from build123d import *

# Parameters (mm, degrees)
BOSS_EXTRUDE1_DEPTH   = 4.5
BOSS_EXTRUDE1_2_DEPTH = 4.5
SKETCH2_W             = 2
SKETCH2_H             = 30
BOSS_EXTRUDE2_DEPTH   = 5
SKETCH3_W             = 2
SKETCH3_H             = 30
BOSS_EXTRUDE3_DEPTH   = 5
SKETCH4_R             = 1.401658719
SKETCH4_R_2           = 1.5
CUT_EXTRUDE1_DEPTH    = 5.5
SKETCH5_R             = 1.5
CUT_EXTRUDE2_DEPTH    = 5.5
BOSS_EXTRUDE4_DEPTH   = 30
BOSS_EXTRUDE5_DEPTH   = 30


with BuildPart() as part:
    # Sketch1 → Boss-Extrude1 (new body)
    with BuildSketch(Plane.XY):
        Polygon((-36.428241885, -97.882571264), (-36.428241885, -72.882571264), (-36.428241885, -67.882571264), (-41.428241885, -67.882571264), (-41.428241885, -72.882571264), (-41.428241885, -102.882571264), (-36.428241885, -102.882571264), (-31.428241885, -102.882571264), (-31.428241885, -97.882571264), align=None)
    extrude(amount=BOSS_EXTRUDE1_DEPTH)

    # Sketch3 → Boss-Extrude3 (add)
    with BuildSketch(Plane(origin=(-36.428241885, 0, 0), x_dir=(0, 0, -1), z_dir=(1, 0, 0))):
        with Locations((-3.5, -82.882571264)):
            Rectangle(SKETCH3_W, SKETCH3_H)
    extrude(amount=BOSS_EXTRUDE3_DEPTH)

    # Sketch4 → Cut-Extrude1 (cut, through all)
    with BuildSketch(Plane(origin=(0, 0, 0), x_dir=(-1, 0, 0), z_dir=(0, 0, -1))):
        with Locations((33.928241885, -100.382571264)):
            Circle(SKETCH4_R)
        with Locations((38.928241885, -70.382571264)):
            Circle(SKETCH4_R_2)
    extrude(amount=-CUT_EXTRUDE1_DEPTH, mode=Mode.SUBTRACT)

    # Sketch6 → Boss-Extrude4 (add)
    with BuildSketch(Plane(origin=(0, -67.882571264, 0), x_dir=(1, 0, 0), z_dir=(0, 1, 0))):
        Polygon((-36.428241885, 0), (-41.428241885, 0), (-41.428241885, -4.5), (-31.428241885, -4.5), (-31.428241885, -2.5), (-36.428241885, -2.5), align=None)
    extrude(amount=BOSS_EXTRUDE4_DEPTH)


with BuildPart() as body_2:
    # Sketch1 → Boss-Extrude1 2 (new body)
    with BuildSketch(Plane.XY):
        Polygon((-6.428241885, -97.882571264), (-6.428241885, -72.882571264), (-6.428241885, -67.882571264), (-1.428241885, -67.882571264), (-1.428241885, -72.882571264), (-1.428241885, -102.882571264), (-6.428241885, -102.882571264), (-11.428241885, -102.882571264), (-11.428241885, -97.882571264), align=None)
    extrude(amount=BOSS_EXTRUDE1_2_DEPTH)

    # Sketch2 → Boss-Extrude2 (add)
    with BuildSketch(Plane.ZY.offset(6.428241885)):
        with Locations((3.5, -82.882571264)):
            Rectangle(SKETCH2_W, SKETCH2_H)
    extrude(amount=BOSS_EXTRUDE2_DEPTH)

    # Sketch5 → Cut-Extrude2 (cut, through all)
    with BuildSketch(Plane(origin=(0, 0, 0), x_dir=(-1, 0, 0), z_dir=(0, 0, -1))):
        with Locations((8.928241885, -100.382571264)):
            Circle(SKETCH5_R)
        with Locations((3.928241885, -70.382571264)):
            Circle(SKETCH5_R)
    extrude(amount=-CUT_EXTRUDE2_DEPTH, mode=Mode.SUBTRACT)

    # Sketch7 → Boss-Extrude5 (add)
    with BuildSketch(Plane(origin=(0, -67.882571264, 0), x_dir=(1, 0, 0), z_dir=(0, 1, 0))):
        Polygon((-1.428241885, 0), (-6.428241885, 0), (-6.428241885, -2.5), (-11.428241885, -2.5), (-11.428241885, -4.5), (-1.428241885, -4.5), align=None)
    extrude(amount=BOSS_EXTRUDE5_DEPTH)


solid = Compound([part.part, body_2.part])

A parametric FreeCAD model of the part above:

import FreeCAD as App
import Part
import Sketcher

doc = App.newDocument("Part")
params = doc.addObject("Spreadsheet::Sheet", "Params")
for row, (alias, value) in enumerate([
    ("sketch1_width", "5 mm"),
    ("sketch1_height", "30 mm"),
    ("pad1_length", "4.5 mm"),
    ("sketch2_width", "30 mm"),
    ("sketch2_height", "2 mm"),
    ("pad2_length", "5 mm"),
    ("sketch3_diameter", "3 mm"),
    ("sketch4_width", "5 mm"),
    ("sketch4_height", "2 mm"),
    ("sketch4_height2", "4.5 mm"),
    ("pad3_length", "30 mm"),
    ("sketch5_width", "5 mm"),
    ("sketch5_height", "30 mm"),
    ("pad4_length", "4.5 mm"),
    ("sketch6_width", "30 mm"),
    ("sketch6_height", "2 mm"),
    ("pad5_length", "5 mm"),
    ("sketch7_diameter", "3 mm"),
    ("sketch8_width", "5 mm"),
    ("sketch8_height", "2 mm"),
    ("sketch8_height2", "2.5 mm"),
    ("pad6_length", "30 mm"),
], start=1):
    params.set(f"A{row}", alias)
    params.set(f"B{row}", "=" + value)
    params.setAlias(f"B{row}", alias)

body = doc.addObject("PartDesign::Body", "Body")

# Sketch on XY plane
sketch1 = body.newObject("Sketcher::SketchObject", "Sketch")
sketch1.AttachmentSupport = (doc.getObject("XY_Plane"), [""])
sketch1.MapMode = "FlatFace"
sketch1.addGeometry(Part.LineSegment(App.Vector(-36.428242, -97.882571, 0), App.Vector(-36.428242, -67.882571, 0)), False)
sketch1.addGeometry(Part.LineSegment(App.Vector(-36.428242, -67.882571, 0), App.Vector(-41.428242, -67.882571, 0)), False)
sketch1.addGeometry(Part.LineSegment(App.Vector(-41.428242, -67.882571, 0), App.Vector(-41.428242, -102.882571, 0)), False)
sketch1.addGeometry(Part.LineSegment(App.Vector(-41.428242, -102.882571, 0), App.Vector(-31.428242, -102.882571, 0)), False)
sketch1.addGeometry(Part.LineSegment(App.Vector(-31.428242, -102.882571, 0), App.Vector(-31.428242, -97.882571, 0)), False)
sketch1.addGeometry(Part.LineSegment(App.Vector(-31.428242, -97.882571, 0), App.Vector(-36.428242, -97.882571, 0)), False)
sketch1.addConstraint(Sketcher.Constraint("Coincident", 0, 2, 1, 1))
sketch1.addConstraint(Sketcher.Constraint("Coincident", 1, 2, 2, 1))
sketch1.addConstraint(Sketcher.Constraint("Coincident", 2, 2, 3, 1))
sketch1.addConstraint(Sketcher.Constraint("Coincident", 3, 2, 4, 1))
sketch1.addConstraint(Sketcher.Constraint("Coincident", 4, 2, 5, 1))
sketch1.addConstraint(Sketcher.Constraint("Coincident", 5, 2, 0, 1))
sketch1.addConstraint(Sketcher.Constraint("Vertical", 0))
sketch1.addConstraint(Sketcher.Constraint("Horizontal", 1))
sketch1.addConstraint(Sketcher.Constraint("Vertical", 2))
sketch1.addConstraint(Sketcher.Constraint("Horizontal", 3))
sketch1.addConstraint(Sketcher.Constraint("Vertical", 4))
sketch1.addConstraint(Sketcher.Constraint("Horizontal", 5))
sketch1.addConstraint(Sketcher.Constraint("Equal", 1, 5))
sketch1.addConstraint(Sketcher.Constraint("Equal", 5, 4))
sketch1.addConstraint(Sketcher.Constraint("DistanceX", 1, 2, 1, 1, 5.0))
sketch1.addConstraint(Sketcher.Constraint("DistanceY", 0, 1, 0, 2, 30.0))
sketch1.addConstraint(Sketcher.Constraint("DistanceX", 0, 2, -1, 1, 36.428242))
sketch1.addConstraint(Sketcher.Constraint("DistanceY", 0, 2, -1, 1, 67.882571))
sketch1.setExpression("Constraints[14]", "Params.sketch1_width")
sketch1.setExpression("Constraints[15]", "Params.sketch1_height")
pad1 = body.newObject("PartDesign::Pad", "Pad")
pad1.Profile = sketch1
pad1.setExpression("Length", "Params.pad1_length")

# Sketch on YZ plane
sketch2 = body.newObject("Sketcher::SketchObject", "Sketch001")
sketch2.AttachmentSupport = (doc.getObject("YZ_Plane"), [""])
sketch2.MapMode = "FlatFace"
sketch2.AttachmentOffset = App.Placement(App.Vector(0, 0, -36.428242), App.Rotation())
sketch2.addGeometry(Part.LineSegment(App.Vector(-67.882571, 4.5, 0), App.Vector(-97.882571, 4.5, 0)), False)
sketch2.addGeometry(Part.LineSegment(App.Vector(-97.882571, 4.5, 0), App.Vector(-97.882571, 2.5, 0)), False)
sketch2.addGeometry(Part.LineSegment(App.Vector(-97.882571, 2.5, 0), App.Vector(-67.882571, 2.5, 0)), False)
sketch2.addGeometry(Part.LineSegment(App.Vector(-67.882571, 2.5, 0), App.Vector(-67.882571, 4.5, 0)), False)
sketch2.addConstraint(Sketcher.Constraint("Coincident", 0, 2, 1, 1))
sketch2.addConstraint(Sketcher.Constraint("Coincident", 1, 2, 2, 1))
sketch2.addConstraint(Sketcher.Constraint("Coincident", 2, 2, 3, 1))
sketch2.addConstraint(Sketcher.Constraint("Coincident", 3, 2, 0, 1))
sketch2.addConstraint(Sketcher.Constraint("Horizontal", 0))
sketch2.addConstraint(Sketcher.Constraint("Vertical", 1))
sketch2.addConstraint(Sketcher.Constraint("Horizontal", 2))
sketch2.addConstraint(Sketcher.Constraint("Vertical", 3))
sketch2.addConstraint(Sketcher.Constraint("DistanceX", 0, 2, 0, 1, 30.0))
sketch2.addConstraint(Sketcher.Constraint("DistanceY", 1, 2, 1, 1, 2.0))
sketch2.addConstraint(Sketcher.Constraint("DistanceY", -1, 1, 0, 2, 4.5))
sketch2.addConstraint(Sketcher.Constraint("DistanceX", 0, 2, -1, 1, 97.882571))
sketch2.setExpression("Constraints[8]", "Params.sketch2_width")
sketch2.setExpression("Constraints[9]", "Params.sketch2_height")
pad2 = body.newObject("PartDesign::Pad", "Pad001")
pad2.Profile = sketch2
pad2.setExpression("Length", "Params.pad2_length")

# Sketch on XY plane
sketch3 = body.newObject("Sketcher::SketchObject", "Sketch002")
sketch3.AttachmentSupport = (doc.getObject("XY_Plane"), [""])
sketch3.MapMode = "FlatFace"
sketch3.addGeometry(Part.Circle(App.Vector(-33.928242, -100.382571, 0), App.Vector(0, 0, 1), 1.401659), False)
sketch3.addGeometry(Part.Circle(App.Vector(-38.928242, -70.382571, 0), App.Vector(0, 0, 1), 1.5), False)
sketch3.addConstraint(Sketcher.Constraint("Diameter", 1, 3.0))
sketch3.addConstraint(Sketcher.Constraint("DistanceX", 1, 3, 0, 3, 5.0))
sketch3.addConstraint(Sketcher.Constraint("DistanceY", 0, 3, 1, 3, 30.0))
sketch3.addConstraint(Sketcher.Constraint("Diameter", 0, 2.803317))
sketch3.addConstraint(Sketcher.Constraint("DistanceX", 0, 3, -1, 1, 33.928242))
sketch3.addConstraint(Sketcher.Constraint("DistanceY", 0, 3, -1, 1, 100.382571))
sketch3.setExpression("Constraints[0]", "Params.sketch3_diameter")
pocket1 = body.newObject("PartDesign::Pocket", "Pocket")
pocket1.Profile = sketch3
pocket1.Type = "ThroughAll"
pocket1.Reversed = True

# Sketch on XZ plane
sketch4 = body.newObject("Sketcher::SketchObject", "Sketch003")
sketch4.AttachmentSupport = (doc.getObject("XZ_Plane"), [""])
sketch4.MapMode = "FlatFace"
sketch4.AttachmentOffset = App.Placement(App.Vector(0, 0, 67.882571), App.Rotation())
sketch4.addGeometry(Part.LineSegment(App.Vector(-36.428242, 0, 0), App.Vector(-41.428242, 0, 0)), False)
sketch4.addGeometry(Part.LineSegment(App.Vector(-41.428242, 0, 0), App.Vector(-41.428242, 4.5, 0)), False)
sketch4.addGeometry(Part.LineSegment(App.Vector(-41.428242, 4.5, 0), App.Vector(-31.428242, 4.5, 0)), False)
sketch4.addGeometry(Part.LineSegment(App.Vector(-31.428242, 4.5, 0), App.Vector(-31.428242, 2.5, 0)), False)
sketch4.addGeometry(Part.LineSegment(App.Vector(-31.428242, 2.5, 0), App.Vector(-36.428242, 2.5, 0)), False)
sketch4.addGeometry(Part.LineSegment(App.Vector(-36.428242, 2.5, 0), App.Vector(-36.428242, 0, 0)), False)
sketch4.addConstraint(Sketcher.Constraint("Coincident", 0, 2, 1, 1))
sketch4.addConstraint(Sketcher.Constraint("Coincident", 1, 2, 2, 1))
sketch4.addConstraint(Sketcher.Constraint("Coincident", 2, 2, 3, 1))
sketch4.addConstraint(Sketcher.Constraint("Coincident", 3, 2, 4, 1))
sketch4.addConstraint(Sketcher.Constraint("Coincident", 4, 2, 5, 1))
sketch4.addConstraint(Sketcher.Constraint("Coincident", 5, 2, 0, 1))
sketch4.addConstraint(Sketcher.Constraint("Horizontal", 0))
sketch4.addConstraint(Sketcher.Constraint("Vertical", 1))
sketch4.addConstraint(Sketcher.Constraint("Horizontal", 2))
sketch4.addConstraint(Sketcher.Constraint("Vertical", 3))
sketch4.addConstraint(Sketcher.Constraint("Horizontal", 4))
sketch4.addConstraint(Sketcher.Constraint("Vertical", 5))
sketch4.addConstraint(Sketcher.Constraint("PointOnObject", 0, 2, -1))
sketch4.addConstraint(Sketcher.Constraint("Equal", 0, 4))
sketch4.addConstraint(Sketcher.Constraint("DistanceX", 0, 2, 0, 1, 5.0))
sketch4.addConstraint(Sketcher.Constraint("DistanceY", 3, 2, 3, 1, 2.0))
sketch4.addConstraint(Sketcher.Constraint("DistanceY", 1, 1, 1, 2, 4.5))
sketch4.addConstraint(Sketcher.Constraint("DistanceX", 0, 2, -1, 1, 41.428242))
sketch4.setExpression("Constraints[14]", "Params.sketch4_width")
sketch4.setExpression("Constraints[15]", "Params.sketch4_height")
sketch4.setExpression("Constraints[16]", "Params.sketch4_height2")
pad3 = body.newObject("PartDesign::Pad", "Pad002")
pad3.Profile = sketch4
pad3.setExpression("Length", "Params.pad3_length")
pad3.Reversed = True
body2 = doc.addObject("PartDesign::Body", "Body001")

# Sketch on XY plane
sketch5 = body2.newObject("Sketcher::SketchObject", "Sketch004")
sketch5.AttachmentSupport = (doc.getObject("XY_Plane001"), [""])
sketch5.MapMode = "FlatFace"
sketch5.addGeometry(Part.LineSegment(App.Vector(-6.428242, -67.882571, 0), App.Vector(-6.428242, -97.882571, 0)), False)
sketch5.addGeometry(Part.LineSegment(App.Vector(-6.428242, -97.882571, 0), App.Vector(-11.428242, -97.882571, 0)), False)
sketch5.addGeometry(Part.LineSegment(App.Vector(-11.428242, -97.882571, 0), App.Vector(-11.428242, -102.882571, 0)), False)
sketch5.addGeometry(Part.LineSegment(App.Vector(-11.428242, -102.882571, 0), App.Vector(-1.428242, -102.882571, 0)), False)
sketch5.addGeometry(Part.LineSegment(App.Vector(-1.428242, -102.882571, 0), App.Vector(-1.428242, -67.882571, 0)), False)
sketch5.addGeometry(Part.LineSegment(App.Vector(-1.428242, -67.882571, 0), App.Vector(-6.428242, -67.882571, 0)), False)
sketch5.addConstraint(Sketcher.Constraint("Coincident", 0, 2, 1, 1))
sketch5.addConstraint(Sketcher.Constraint("Coincident", 1, 2, 2, 1))
sketch5.addConstraint(Sketcher.Constraint("Coincident", 2, 2, 3, 1))
sketch5.addConstraint(Sketcher.Constraint("Coincident", 3, 2, 4, 1))
sketch5.addConstraint(Sketcher.Constraint("Coincident", 4, 2, 5, 1))
sketch5.addConstraint(Sketcher.Constraint("Coincident", 5, 2, 0, 1))
sketch5.addConstraint(Sketcher.Constraint("Vertical", 0))
sketch5.addConstraint(Sketcher.Constraint("Horizontal", 1))
sketch5.addConstraint(Sketcher.Constraint("Vertical", 2))
sketch5.addConstraint(Sketcher.Constraint("Horizontal", 3))
sketch5.addConstraint(Sketcher.Constraint("Vertical", 4))
sketch5.addConstraint(Sketcher.Constraint("Horizontal", 5))
sketch5.addConstraint(Sketcher.Constraint("Equal", 1, 5))
sketch5.addConstraint(Sketcher.Constraint("Equal", 5, 2))
sketch5.addConstraint(Sketcher.Constraint("DistanceX", 1, 2, 1, 1, 5.0))
sketch5.addConstraint(Sketcher.Constraint("DistanceY", 0, 2, 0, 1, 30.0))
sketch5.addConstraint(Sketcher.Constraint("DistanceX", 0, 2, -1, 1, 6.428242))
sketch5.addConstraint(Sketcher.Constraint("DistanceY", 0, 2, -1, 1, 97.882571))
sketch5.setExpression("Constraints[14]", "Params.sketch5_width")
sketch5.setExpression("Constraints[15]", "Params.sketch5_height")
pad4 = body2.newObject("PartDesign::Pad", "Pad003")
pad4.Profile = sketch5
pad4.setExpression("Length", "Params.pad4_length")

# Sketch on YZ plane
sketch6 = body2.newObject("Sketcher::SketchObject", "Sketch005")
sketch6.AttachmentSupport = (doc.getObject("YZ_Plane001"), [""])
sketch6.MapMode = "FlatFace"
sketch6.AttachmentOffset = App.Placement(App.Vector(0, 0, -6.428242), App.Rotation())
sketch6.addGeometry(Part.LineSegment(App.Vector(-67.882571, 2.5, 0), App.Vector(-97.882571, 2.5, 0)), False)
sketch6.addGeometry(Part.LineSegment(App.Vector(-97.882571, 2.5, 0), App.Vector(-97.882571, 4.5, 0)), False)
sketch6.addGeometry(Part.LineSegment(App.Vector(-97.882571, 4.5, 0), App.Vector(-67.882571, 4.5, 0)), False)
sketch6.addGeometry(Part.LineSegment(App.Vector(-67.882571, 4.5, 0), App.Vector(-67.882571, 2.5, 0)), False)
sketch6.addConstraint(Sketcher.Constraint("Coincident", 0, 2, 1, 1))
sketch6.addConstraint(Sketcher.Constraint("Coincident", 1, 2, 2, 1))
sketch6.addConstraint(Sketcher.Constraint("Coincident", 2, 2, 3, 1))
sketch6.addConstraint(Sketcher.Constraint("Coincident", 3, 2, 0, 1))
sketch6.addConstraint(Sketcher.Constraint("Horizontal", 0))
sketch6.addConstraint(Sketcher.Constraint("Vertical", 1))
sketch6.addConstraint(Sketcher.Constraint("Horizontal", 2))
sketch6.addConstraint(Sketcher.Constraint("Vertical", 3))
sketch6.addConstraint(Sketcher.Constraint("DistanceX", 0, 2, 0, 1, 30.0))
sketch6.addConstraint(Sketcher.Constraint("DistanceY", 1, 1, 1, 2, 2.0))
sketch6.addConstraint(Sketcher.Constraint("DistanceY", -1, 1, 0, 2, 2.5))
sketch6.addConstraint(Sketcher.Constraint("DistanceX", 0, 2, -1, 1, 97.882571))
sketch6.setExpression("Constraints[8]", "Params.sketch6_width")
sketch6.setExpression("Constraints[9]", "Params.sketch6_height")
pad5 = body2.newObject("PartDesign::Pad", "Pad004")
pad5.Profile = sketch6
pad5.setExpression("Length", "Params.pad5_length")
pad5.Reversed = True

# Sketch on XY plane
sketch7 = body2.newObject("Sketcher::SketchObject", "Sketch006")
sketch7.AttachmentSupport = (doc.getObject("XY_Plane001"), [""])
sketch7.MapMode = "FlatFace"
sketch7.addGeometry(Part.Circle(App.Vector(-8.928242, -100.382571, 0), App.Vector(0, 0, 1), 1.5), False)
sketch7.addGeometry(Part.Circle(App.Vector(-3.928242, -70.382571, 0), App.Vector(0, 0, 1), 1.5), False)
sketch7.addConstraint(Sketcher.Constraint("Equal", 0, 1))
sketch7.addConstraint(Sketcher.Constraint("Diameter", 0, 3.0))
sketch7.addConstraint(Sketcher.Constraint("DistanceX", 0, 3, 1, 3, 5.0))
sketch7.addConstraint(Sketcher.Constraint("DistanceY", 0, 3, 1, 3, 30.0))
sketch7.addConstraint(Sketcher.Constraint("DistanceX", 0, 3, -1, 1, 8.928242))
sketch7.addConstraint(Sketcher.Constraint("DistanceY", 0, 3, -1, 1, 100.382571))
sketch7.setExpression("Constraints[1]", "Params.sketch7_diameter")
pocket2 = body2.newObject("PartDesign::Pocket", "Pocket001")
pocket2.Profile = sketch7
pocket2.Type = "ThroughAll"
pocket2.Reversed = True

# Sketch on XZ plane
sketch8 = body2.newObject("Sketcher::SketchObject", "Sketch007")
sketch8.AttachmentSupport = (doc.getObject("XZ_Plane001"), [""])
sketch8.MapMode = "FlatFace"
sketch8.AttachmentOffset = App.Placement(App.Vector(0, 0, 67.882571), App.Rotation())
sketch8.addGeometry(Part.LineSegment(App.Vector(-1.428242, 0, 0), App.Vector(-6.428242, 0, 0)), False)
sketch8.addGeometry(Part.LineSegment(App.Vector(-6.428242, 0, 0), App.Vector(-6.428242, 2.5, 0)), False)
sketch8.addGeometry(Part.LineSegment(App.Vector(-6.428242, 2.5, 0), App.Vector(-11.428242, 2.5, 0)), False)
sketch8.addGeometry(Part.LineSegment(App.Vector(-11.428242, 2.5, 0), App.Vector(-11.428242, 4.5, 0)), False)
sketch8.addGeometry(Part.LineSegment(App.Vector(-11.428242, 4.5, 0), App.Vector(-1.428242, 4.5, 0)), False)
sketch8.addGeometry(Part.LineSegment(App.Vector(-1.428242, 4.5, 0), App.Vector(-1.428242, 0, 0)), False)
sketch8.addConstraint(Sketcher.Constraint("Coincident", 0, 2, 1, 1))
sketch8.addConstraint(Sketcher.Constraint("Coincident", 1, 2, 2, 1))
sketch8.addConstraint(Sketcher.Constraint("Coincident", 2, 2, 3, 1))
sketch8.addConstraint(Sketcher.Constraint("Coincident", 3, 2, 4, 1))
sketch8.addConstraint(Sketcher.Constraint("Coincident", 4, 2, 5, 1))
sketch8.addConstraint(Sketcher.Constraint("Coincident", 5, 2, 0, 1))
sketch8.addConstraint(Sketcher.Constraint("Horizontal", 0))
sketch8.addConstraint(Sketcher.Constraint("Vertical", 1))
sketch8.addConstraint(Sketcher.Constraint("Horizontal", 2))
sketch8.addConstraint(Sketcher.Constraint("Vertical", 3))
sketch8.addConstraint(Sketcher.Constraint("Horizontal", 4))
sketch8.addConstraint(Sketcher.Constraint("Vertical", 5))
sketch8.addConstraint(Sketcher.Constraint("PointOnObject", 0, 2, -1))
sketch8.addConstraint(Sketcher.Constraint("Equal", 0, 2))
sketch8.addConstraint(Sketcher.Constraint("DistanceX", 0, 2, 0, 1, 5.0))
sketch8.addConstraint(Sketcher.Constraint("DistanceY", 3, 1, 3, 2, 2.0))
sketch8.addConstraint(Sketcher.Constraint("DistanceY", 1, 1, 1, 2, 2.5))
sketch8.addConstraint(Sketcher.Constraint("DistanceX", 0, 2, -1, 1, 6.428242))
sketch8.setExpression("Constraints[14]", "Params.sketch8_width")
sketch8.setExpression("Constraints[15]", "Params.sketch8_height")
sketch8.setExpression("Constraints[16]", "Params.sketch8_height2")
pad6 = body2.newObject("PartDesign::Pad", "Pad005")
pad6.Profile = sketch8
pad6.setExpression("Length", "Params.pad6_length")
pad6.Reversed = True

doc.recompute()
